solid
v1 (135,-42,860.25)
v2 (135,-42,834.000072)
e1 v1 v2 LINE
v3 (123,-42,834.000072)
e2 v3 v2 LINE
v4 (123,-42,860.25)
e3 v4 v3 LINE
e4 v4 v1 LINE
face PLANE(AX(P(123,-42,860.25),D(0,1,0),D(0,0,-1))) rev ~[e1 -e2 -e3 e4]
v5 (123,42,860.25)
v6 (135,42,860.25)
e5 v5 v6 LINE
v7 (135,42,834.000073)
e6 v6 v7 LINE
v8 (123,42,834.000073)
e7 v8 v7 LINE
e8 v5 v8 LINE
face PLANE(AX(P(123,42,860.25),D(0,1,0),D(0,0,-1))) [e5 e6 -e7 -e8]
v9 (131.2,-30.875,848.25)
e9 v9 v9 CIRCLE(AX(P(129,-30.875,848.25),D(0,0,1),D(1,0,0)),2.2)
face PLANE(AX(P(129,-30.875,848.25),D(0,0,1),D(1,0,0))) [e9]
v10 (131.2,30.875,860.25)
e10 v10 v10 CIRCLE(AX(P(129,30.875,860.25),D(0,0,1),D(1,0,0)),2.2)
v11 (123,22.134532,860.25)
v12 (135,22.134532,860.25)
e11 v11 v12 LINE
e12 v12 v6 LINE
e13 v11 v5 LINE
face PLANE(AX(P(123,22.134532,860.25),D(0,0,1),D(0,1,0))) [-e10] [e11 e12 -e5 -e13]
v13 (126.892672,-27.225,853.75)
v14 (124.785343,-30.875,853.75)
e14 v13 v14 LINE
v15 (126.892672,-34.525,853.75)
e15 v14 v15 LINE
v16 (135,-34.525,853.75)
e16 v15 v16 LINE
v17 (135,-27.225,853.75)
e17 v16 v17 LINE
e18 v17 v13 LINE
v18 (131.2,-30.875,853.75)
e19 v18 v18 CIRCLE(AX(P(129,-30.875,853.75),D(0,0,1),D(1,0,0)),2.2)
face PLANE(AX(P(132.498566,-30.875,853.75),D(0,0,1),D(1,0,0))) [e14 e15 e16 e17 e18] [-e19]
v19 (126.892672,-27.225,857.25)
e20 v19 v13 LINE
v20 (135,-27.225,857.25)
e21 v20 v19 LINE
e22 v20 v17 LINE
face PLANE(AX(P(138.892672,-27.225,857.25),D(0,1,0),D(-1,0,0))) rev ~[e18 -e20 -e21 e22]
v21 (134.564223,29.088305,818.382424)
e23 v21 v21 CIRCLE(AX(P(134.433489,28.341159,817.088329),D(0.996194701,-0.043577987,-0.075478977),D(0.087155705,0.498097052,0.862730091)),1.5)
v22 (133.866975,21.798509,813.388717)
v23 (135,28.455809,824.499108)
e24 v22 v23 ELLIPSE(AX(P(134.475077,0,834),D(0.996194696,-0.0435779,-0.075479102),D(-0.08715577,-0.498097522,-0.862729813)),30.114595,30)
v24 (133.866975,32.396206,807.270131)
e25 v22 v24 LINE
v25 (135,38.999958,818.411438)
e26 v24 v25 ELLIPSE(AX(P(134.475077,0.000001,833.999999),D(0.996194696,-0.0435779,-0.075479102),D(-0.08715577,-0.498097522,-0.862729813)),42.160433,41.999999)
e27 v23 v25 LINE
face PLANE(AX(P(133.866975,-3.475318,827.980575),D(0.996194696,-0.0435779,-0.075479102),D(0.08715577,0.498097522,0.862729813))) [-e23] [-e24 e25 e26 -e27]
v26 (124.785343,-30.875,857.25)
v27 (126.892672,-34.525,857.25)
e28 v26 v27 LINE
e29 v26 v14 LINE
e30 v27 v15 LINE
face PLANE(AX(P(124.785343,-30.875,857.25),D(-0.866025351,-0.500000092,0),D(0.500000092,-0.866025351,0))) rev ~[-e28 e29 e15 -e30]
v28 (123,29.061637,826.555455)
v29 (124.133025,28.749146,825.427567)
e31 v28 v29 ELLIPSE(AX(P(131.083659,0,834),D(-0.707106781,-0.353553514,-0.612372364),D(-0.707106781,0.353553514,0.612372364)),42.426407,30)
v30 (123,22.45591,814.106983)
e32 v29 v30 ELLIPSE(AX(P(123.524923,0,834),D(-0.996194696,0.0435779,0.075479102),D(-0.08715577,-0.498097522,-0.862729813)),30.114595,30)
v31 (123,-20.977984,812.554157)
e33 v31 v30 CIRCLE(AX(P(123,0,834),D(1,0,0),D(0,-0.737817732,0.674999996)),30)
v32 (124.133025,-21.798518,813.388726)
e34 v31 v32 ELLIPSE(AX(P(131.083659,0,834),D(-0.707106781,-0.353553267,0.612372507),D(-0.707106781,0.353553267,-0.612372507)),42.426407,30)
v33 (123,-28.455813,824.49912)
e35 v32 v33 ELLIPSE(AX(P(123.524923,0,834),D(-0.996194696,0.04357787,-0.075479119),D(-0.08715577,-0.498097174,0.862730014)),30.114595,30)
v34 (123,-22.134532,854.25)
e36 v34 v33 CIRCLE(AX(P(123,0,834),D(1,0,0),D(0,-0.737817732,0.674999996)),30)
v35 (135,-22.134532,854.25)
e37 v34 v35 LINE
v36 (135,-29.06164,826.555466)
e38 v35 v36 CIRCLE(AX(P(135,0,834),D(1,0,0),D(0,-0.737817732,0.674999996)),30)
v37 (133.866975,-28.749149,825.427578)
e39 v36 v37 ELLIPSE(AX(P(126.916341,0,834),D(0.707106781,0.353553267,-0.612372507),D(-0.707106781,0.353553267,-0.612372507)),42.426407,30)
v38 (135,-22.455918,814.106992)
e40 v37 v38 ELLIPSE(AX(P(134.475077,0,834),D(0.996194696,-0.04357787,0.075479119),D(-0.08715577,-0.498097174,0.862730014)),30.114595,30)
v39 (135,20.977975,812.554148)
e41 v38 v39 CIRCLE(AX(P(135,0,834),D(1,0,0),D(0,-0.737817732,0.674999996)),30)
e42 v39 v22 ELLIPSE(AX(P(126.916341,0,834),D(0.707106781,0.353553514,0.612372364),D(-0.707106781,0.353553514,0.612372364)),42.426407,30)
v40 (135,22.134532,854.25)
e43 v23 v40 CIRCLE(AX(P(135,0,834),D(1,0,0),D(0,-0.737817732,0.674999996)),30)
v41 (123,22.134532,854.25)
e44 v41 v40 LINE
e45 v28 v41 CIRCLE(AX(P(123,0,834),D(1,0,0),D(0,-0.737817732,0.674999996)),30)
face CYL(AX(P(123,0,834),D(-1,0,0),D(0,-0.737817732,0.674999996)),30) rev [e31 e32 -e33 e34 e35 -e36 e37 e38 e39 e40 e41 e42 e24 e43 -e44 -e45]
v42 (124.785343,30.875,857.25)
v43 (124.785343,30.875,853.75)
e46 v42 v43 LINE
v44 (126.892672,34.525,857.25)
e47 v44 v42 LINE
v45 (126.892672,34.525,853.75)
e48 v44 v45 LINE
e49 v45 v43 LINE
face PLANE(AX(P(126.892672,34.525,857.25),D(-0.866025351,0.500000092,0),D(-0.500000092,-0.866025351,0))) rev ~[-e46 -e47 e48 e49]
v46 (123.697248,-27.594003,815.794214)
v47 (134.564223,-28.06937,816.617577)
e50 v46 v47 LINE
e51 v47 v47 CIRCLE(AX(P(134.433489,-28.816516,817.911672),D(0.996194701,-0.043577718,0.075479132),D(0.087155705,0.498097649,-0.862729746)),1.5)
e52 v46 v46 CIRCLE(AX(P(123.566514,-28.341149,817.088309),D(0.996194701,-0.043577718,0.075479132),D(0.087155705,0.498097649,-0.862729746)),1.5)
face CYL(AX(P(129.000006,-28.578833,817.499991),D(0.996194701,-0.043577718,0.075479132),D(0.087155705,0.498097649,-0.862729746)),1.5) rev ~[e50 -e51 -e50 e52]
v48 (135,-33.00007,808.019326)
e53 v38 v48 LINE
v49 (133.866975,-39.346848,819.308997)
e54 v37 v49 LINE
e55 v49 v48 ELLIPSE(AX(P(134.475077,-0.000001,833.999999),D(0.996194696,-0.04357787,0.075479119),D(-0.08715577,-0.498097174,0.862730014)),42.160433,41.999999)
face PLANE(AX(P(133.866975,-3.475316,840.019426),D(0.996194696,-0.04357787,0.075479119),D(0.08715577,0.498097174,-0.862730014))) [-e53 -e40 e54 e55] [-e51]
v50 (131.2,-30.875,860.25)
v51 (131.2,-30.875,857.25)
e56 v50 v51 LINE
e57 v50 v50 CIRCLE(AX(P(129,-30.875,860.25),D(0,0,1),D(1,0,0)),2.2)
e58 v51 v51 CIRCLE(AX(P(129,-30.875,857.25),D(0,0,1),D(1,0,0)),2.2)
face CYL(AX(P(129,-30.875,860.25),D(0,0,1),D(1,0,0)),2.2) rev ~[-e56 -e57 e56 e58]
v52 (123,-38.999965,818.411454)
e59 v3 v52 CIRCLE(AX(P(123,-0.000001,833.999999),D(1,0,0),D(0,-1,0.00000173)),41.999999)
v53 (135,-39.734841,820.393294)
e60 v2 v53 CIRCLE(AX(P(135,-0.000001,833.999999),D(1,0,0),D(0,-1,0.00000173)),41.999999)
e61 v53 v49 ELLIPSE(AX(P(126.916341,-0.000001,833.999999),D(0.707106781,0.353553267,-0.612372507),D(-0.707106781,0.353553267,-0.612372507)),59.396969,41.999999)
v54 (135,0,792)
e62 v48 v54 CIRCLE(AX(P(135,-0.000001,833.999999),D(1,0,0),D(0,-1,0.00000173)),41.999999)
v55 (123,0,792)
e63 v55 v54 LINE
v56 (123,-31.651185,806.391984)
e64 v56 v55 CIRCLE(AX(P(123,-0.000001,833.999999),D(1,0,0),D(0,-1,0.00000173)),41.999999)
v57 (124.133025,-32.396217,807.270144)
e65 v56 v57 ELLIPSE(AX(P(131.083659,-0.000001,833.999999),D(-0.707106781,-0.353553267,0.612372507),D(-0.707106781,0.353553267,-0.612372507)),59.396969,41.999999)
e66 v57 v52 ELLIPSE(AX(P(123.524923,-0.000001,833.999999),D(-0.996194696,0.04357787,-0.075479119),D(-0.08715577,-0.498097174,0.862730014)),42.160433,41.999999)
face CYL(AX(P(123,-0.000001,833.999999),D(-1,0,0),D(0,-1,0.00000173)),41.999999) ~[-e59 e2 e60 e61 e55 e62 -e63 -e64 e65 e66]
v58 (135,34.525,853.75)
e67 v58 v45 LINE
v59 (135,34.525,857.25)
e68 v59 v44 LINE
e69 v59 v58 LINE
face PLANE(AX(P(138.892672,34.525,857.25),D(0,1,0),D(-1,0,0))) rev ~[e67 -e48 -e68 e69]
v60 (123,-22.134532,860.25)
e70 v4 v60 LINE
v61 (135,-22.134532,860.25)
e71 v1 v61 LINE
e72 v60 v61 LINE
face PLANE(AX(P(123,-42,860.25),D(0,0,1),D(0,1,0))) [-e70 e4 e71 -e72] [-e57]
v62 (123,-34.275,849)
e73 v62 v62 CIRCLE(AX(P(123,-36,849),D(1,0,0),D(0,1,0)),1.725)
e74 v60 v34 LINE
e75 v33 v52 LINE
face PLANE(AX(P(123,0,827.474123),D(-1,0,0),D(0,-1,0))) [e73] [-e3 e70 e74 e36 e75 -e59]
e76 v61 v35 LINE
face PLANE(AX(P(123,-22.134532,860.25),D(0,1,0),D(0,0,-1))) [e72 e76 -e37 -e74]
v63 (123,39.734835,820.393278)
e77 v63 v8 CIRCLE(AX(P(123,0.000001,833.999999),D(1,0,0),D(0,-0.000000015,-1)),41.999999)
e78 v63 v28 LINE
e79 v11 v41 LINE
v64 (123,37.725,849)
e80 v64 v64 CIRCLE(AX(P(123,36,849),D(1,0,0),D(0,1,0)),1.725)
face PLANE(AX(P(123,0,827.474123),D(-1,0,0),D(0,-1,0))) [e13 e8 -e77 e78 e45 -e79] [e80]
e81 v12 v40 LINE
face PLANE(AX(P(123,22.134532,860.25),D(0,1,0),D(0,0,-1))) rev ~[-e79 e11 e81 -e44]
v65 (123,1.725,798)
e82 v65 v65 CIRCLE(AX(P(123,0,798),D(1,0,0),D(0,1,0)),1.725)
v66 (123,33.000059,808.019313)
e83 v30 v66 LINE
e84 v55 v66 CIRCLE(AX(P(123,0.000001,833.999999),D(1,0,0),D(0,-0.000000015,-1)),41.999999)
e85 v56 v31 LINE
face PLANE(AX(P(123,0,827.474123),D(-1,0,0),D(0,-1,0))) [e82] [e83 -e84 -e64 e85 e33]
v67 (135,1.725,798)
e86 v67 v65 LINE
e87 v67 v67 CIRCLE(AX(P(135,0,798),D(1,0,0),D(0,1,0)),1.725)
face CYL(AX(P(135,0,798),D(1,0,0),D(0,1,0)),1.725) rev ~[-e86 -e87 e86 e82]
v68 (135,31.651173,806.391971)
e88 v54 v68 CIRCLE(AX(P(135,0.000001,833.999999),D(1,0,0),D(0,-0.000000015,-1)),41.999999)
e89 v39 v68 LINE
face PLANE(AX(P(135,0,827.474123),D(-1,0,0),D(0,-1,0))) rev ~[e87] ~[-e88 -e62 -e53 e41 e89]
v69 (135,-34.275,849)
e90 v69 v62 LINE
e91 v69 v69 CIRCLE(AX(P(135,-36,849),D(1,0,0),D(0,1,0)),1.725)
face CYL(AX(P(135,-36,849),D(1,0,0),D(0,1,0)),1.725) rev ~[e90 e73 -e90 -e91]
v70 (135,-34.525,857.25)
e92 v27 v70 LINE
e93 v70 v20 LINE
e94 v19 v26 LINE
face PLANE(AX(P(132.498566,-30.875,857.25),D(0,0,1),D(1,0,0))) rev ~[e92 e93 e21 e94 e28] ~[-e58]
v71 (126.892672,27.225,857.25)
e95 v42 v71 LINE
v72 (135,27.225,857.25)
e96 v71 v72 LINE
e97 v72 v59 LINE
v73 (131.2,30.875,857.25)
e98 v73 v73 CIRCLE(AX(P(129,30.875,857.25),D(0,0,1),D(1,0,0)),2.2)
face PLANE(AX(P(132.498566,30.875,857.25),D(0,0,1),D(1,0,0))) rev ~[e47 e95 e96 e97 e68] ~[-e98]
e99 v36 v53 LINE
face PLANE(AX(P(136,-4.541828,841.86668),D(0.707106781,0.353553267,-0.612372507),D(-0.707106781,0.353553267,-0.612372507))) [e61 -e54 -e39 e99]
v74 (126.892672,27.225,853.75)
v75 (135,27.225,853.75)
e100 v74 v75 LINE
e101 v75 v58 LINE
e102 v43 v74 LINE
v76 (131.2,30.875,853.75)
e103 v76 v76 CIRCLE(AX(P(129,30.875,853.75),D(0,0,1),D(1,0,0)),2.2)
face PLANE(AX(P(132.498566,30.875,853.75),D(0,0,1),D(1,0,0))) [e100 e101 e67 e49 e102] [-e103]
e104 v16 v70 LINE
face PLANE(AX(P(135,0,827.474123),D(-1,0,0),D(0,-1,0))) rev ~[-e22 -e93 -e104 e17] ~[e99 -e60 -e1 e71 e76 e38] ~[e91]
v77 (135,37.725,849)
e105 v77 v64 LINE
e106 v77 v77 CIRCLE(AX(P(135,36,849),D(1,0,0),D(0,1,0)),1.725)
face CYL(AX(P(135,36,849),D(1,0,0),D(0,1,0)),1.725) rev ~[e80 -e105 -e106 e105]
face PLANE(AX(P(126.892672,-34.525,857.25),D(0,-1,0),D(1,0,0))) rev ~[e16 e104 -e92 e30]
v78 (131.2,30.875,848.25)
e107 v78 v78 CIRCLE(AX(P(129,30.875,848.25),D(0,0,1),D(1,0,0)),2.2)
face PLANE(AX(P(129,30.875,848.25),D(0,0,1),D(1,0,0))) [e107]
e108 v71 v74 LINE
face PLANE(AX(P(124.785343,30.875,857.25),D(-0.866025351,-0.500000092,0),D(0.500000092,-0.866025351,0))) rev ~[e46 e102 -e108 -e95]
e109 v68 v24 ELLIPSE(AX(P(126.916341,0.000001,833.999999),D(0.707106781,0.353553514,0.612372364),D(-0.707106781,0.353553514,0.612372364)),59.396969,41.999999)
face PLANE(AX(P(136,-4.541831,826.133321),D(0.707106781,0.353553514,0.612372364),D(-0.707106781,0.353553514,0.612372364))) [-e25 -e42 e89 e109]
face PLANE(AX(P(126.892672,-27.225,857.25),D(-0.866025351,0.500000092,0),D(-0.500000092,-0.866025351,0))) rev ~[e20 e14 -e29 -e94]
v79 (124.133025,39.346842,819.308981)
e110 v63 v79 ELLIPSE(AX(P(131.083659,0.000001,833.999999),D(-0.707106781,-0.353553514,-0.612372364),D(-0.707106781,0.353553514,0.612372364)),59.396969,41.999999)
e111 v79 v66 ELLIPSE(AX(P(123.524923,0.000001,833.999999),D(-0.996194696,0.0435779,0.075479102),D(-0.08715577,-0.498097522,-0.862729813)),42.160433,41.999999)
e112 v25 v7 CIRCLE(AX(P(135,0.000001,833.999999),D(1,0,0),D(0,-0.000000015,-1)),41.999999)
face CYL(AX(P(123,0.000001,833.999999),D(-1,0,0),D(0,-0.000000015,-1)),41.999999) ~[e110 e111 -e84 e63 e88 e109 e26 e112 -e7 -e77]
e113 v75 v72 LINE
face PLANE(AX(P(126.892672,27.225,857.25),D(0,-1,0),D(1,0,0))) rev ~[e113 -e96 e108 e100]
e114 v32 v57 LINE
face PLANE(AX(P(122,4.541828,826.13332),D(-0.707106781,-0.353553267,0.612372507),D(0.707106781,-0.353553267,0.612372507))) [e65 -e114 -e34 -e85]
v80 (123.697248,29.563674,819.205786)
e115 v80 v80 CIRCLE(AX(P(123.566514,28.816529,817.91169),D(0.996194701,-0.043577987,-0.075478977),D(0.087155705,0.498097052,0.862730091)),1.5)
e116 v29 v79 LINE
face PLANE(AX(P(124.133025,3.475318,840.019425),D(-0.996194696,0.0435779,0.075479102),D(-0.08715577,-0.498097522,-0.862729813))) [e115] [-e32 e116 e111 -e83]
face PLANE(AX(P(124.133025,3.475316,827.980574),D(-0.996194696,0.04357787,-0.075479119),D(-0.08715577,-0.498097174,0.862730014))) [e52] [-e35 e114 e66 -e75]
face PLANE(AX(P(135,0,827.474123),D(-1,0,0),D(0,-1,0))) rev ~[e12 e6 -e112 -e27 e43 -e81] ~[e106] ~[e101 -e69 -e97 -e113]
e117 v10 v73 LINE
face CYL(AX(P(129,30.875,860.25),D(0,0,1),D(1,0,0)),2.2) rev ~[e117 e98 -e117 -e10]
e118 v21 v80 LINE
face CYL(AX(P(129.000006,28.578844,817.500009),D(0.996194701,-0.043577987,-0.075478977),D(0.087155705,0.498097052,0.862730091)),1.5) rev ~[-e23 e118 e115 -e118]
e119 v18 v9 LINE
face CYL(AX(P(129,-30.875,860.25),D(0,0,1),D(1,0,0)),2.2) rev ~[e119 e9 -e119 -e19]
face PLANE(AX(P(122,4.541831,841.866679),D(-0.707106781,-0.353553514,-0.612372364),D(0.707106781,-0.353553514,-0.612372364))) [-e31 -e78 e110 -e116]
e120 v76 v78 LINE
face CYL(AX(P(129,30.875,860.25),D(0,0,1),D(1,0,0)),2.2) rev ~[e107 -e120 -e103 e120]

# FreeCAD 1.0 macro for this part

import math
import FreeCAD as App
import Part
import Sketcher
Q = App.Units.Quantity


def add_polygon(sketch, points):
    """Adds a closed chain of lines whose ends are joined by coincident constraints."""
    first, n = sketch.GeometryCount, len(points)
    for a, b in zip(points, points[1:] + points[:1]):
        sketch.addGeometry(Part.LineSegment(App.Vector(*a, 0), App.Vector(*b, 0)), False)
    for i in range(n):
        sketch.addConstraint(Sketcher.Constraint("Coincident", first + i, 2, first + (i + 1) % n, 1))

doc = App.newDocument("Part")
body = doc.addObject("PartDesign::Body", "Body")

# Sketch on YZ plane
sketch1 = body.newObject("Sketcher::SketchObject", "Sketch")
sketch1.AttachmentSupport = (doc.getObject("YZ_Plane"), [""])
sketch1.MapMode = "FlatFace"
sketch1.addGeometry(Part.LineSegment(App.Vector(-22.134532, 26.25, 0), App.Vector(-42, 26.25, 0)), False)
sketch1.addGeometry(Part.LineSegment(App.Vector(-42, 26.25, 0), App.Vector(-42, 0.000072, 0)), False)
sketch1.addGeometry(Part.ArcOfCircle(Part.Circle(App.Vector(-0.000001, -0.000001, 0), App.Vector(0, 0, 1), 41.999999), math.radians(179.999901), math.radians(270.000001)), False)
sketch1.addGeometry(Part.ArcOfCircle(Part.Circle(App.Vector(0.000001, -0.000001, 0), App.Vector(0, 0, 1), 41.999999), math.radians(-90.000001), math.radians(0.0001)), False)
sketch1.addGeometry(Part.LineSegment(App.Vector(42, 0.000073, 0), App.Vector(42, 26.25, 0)), False)
sketch1.addGeometry(Part.LineSegment(App.Vector(42, 26.25, 0), App.Vector(22.134532, 26.25, 0)), False)
sketch1.addGeometry(Part.LineSegment(App.Vector(22.134532, 26.25, 0), App.Vector(22.134532, 20.25, 0)), False)
sketch1.addGeometry(Part.ArcOfCircle(Part.Circle(App.Vector(0, 0, 0), App.Vector(0, 0, 1), 30), math.radians(137.54585), math.radians(402.45415)), False)
sketch1.addGeometry(Part.LineSegment(App.Vector(-22.134532, 20.25, 0), App.Vector(-22.134532, 26.25, 0)), False)
sketch1.addConstraint(Sketcher.Constraint("Coincident", 0, 2, 1, 1))
sketch1.addConstraint(Sketcher.Constraint("Coincident", 1, 2, 2, 1))
sketch1.addConstraint(Sketcher.Constraint("Coincident", 2, 2, 3, 1))
sketch1.addConstraint(Sketcher.Constraint("Coincident", 3, 2, 4, 1))
sketch1.addConstraint(Sketcher.Constraint("Coincident", 4, 2, 5, 1))
sketch1.addConstraint(Sketcher.Constraint("Coincident", 5, 2, 6, 1))
sketch1.addConstraint(Sketcher.Constraint("Coincident", 6, 2, 7, 2))
sketch1.addConstraint(Sketcher.Constraint("Coincident", 7, 1, 8, 1))
sketch1.addConstraint(Sketcher.Constraint("Coincident", 8, 2, 0, 1))
sketch1.addConstraint(Sketcher.Constraint("Horizontal", 0))
sketch1.addConstraint(Sketcher.Constraint("Vertical", 1))
sketch1.addConstraint(Sketcher.Constraint("Vertical", 4))
sketch1.addConstraint(Sketcher.Constraint("Horizontal", 5))
sketch1.addConstraint(Sketcher.Constraint("Vertical", 6))
sketch1.addConstraint(Sketcher.Constraint("Vertical", 8))
sketch1.addConstraint(Sketcher.Constraint("Coincident", 2, 3, -1, 1))
sketch1.addConstraint(Sketcher.Constraint("Coincident", 3, 3, -1, 1))
sketch1.addConstraint(Sketcher.Constraint("Coincident", 7, 3, -1, 1))
sketch1.addConstraint(Sketcher.Constraint("PointOnObject", 2, 2, -2))
sketch1.addConstraint(Sketcher.Constraint("Radius", 2, 41.999999))
sketch1.addConstraint(Sketcher.Constraint("Radius", 7, 30.0))
sketch1.addConstraint(Sketcher.Constraint("DistanceY", 6, 2, 6, 1, 6.0))
sketch1.addConstraint(Sketcher.Constraint("DistanceY", 8, 1, 8, 2, 6.0))
sketch1.addConstraint(Sketcher.Constraint("DistanceY", -1, 1, 0, 2, 26.25))
sketch1.addConstraint(Sketcher.Constraint("DistanceY", -1, 1, 4, 2, 26.25))
sketch1.addConstraint(Sketcher.Constraint("DistanceY", 1, 2, 1, 1, 26.249928))
sketch1.addConstraint(Sketcher.Constraint("DistanceY", 4, 1, 4, 2, 26.249927))
pad1 = body.newObject("PartDesign::Pad", "Pad")
pad1.Profile = sketch1
pad1.Length = 12

# Sketch on YZ plane
sketch2 = body.newObject("Sketcher::SketchObject", "Sketch001")
sketch2.AttachmentSupport = (doc.getObject("YZ_Plane"), [""])
sketch2.MapMode = "FlatFace"
sketch2.AttachmentOffset = App.Placement(App.Vector(0, 0, 12), App.Rotation())
sketch2.addGeometry(Part.Circle(App.Vector(0, -36, 0), App.Vector(0, 0, 1), 1.7), False)
sketch2.addGeometry(Part.Circle(App.Vector(-36, 15, 0), App.Vector(0, 0, 1), 1.7), False)
sketch2.addGeometry(Part.Circle(App.Vector(36, 15, 0), App.Vector(0, 0, 1), 1.7), False)
sketch2.addConstraint(Sketcher.Constraint("Equal", 0, 1))
sketch2.addConstraint(Sketcher.Constraint("Equal", 1, 2))
sketch2.addConstraint(Sketcher.Constraint("Symmetric", 1, 3, 2, 3, -2))
sketch2.addConstraint(Sketcher.Constraint("PointOnObject", 0, 3, -2))
sketch2.addConstraint(Sketcher.Constraint("Diameter", 0, 3.45))
sketch2.addConstraint(Sketcher.Constraint("DistanceY", 0, 3, -1, 1, 36.0))
sketch2.addConstraint(Sketcher.Constraint("DistanceX", 1, 3, -1, 1, 36.0))
sketch2.addConstraint(Sketcher.Constraint("DistanceY", -1, 1, 1, 3, 15.0))
pocket1 = body.newObject("PartDesign::Pocket", "Pocket")
pocket1.Profile = sketch2
pocket1.Type = "ThroughAll"

# Sketch on XY plane
sketch3 = body.newObject("Sketcher::SketchObject", "Sketch002")
sketch3.AttachmentSupport = (doc.getObject("XY_Plane"), [""])
sketch3.MapMode = "FlatFace"
sketch3.AttachmentOffset = App.Placement(App.Vector(0, 0, 26.25), App.Rotation())
sketch3.addGeometry(Part.Circle(App.Vector(6, 30.9, 0), App.Vector(0, 0, 1), 2.2), False)
sketch3.addGeometry(Part.Circle(App.Vector(6, -30.9, 0), App.Vector(0, 0, 1), 2.2), False)
sketch3.addConstraint(Sketcher.Constraint("Equal", 0, 1))
sketch3.addConstraint(Sketcher.Constraint("Symmetric", 0, 3, 1, 3, -1))
sketch3.addConstraint(Sketcher.Constraint("Diameter", 0, 4.4))
sketch3.addConstraint(Sketcher.Constraint("DistanceX", -1, 1, 0, 3, 6.0))
sketch3.addConstraint(Sketcher.Constraint("DistanceY", 1, 3, 0, 3, 61.75))
pocket2 = body.newObject("PartDesign::Pocket", "Pocket001")
pocket2.Profile = sketch3
pocket2.Length = 12

# Sketch on XY plane
sketch4 = body.newObject("Sketcher::SketchObject", "Sketch003")
sketch4.AttachmentSupport = (doc.getObject("XY_Plane"), [""])
sketch4.MapMode = "FlatFace"
sketch4.AttachmentOffset = App.Placement(App.Vector(0, 0, 23.25), App.Rotation())
add_polygon(sketch4, [(3.9, -27.2), (1.8, -30.9), (3.9, -34.5), (15.9, -34.5), (15.9, -27.2)])  # lines 0-4
add_polygon(sketch4, [(3.9, 34.5), (1.8, 30.9), (3.9, 27.2), (15.9, 27.2), (15.9, 34.5)])  # lines 5-9
sketch4.addConstraint(Sketcher.Constraint("Horizontal", 2))
sketch4.addConstraint(Sketcher.Constraint("Vertical", 3))
sketch4.addConstraint(Sketcher.Constraint("Horizontal", 4))
sketch4.addConstraint(Sketcher.Constraint("Horizontal", 7))
sketch4.addConstraint(Sketcher.Constraint("Vertical", 8))
sketch4.addConstraint(Sketcher.Constraint("Horizontal", 9))
sketch4.addConstraint(Sketcher.Constraint("Symmetric", 0, 2, 5, 2, -1))
sketch4.addConstraint(Sketcher.Constraint("Symmetric", 4, 2, 6, 2, -1))
sketch4.addConstraint(Sketcher.Constraint("Symmetric", 2, 2, 8, 2, -1))
sketch4.addConstraint(Sketcher.Constraint("Parallel", 0, 5))
sketch4.addConstraint(Sketcher.Constraint("Parallel", 1, 6))
sketch4.addConstraint(Sketcher.Constraint("Vertical", 1, 2, 4, 2))
sketch4.addConstraint(Sketcher.Constraint("DistanceX", 2, 1, 2, 2, 12.0))
sketch4.addConstraint(Sketcher.Constraint("Angle", 0, Q("-120.000006 deg")))
sketch4.addConstraint(Sketcher.Constraint("DistanceY", 3, 1, 3, 2, 7.3))
sketch4.addConstraint(Sketcher.Constraint("DistanceY", 4, 2, 5, 2, 58.1))
sketch4.addConstraint(Sketcher.Constraint("DistanceX", -1, 1, 2, 2, 15.892672))
pocket3 = body.newObject("PartDesign::Pocket", "Pocket002")
pocket3.Profile = sketch4
pocket3.Length = 3.5

# Sketch on an angled plane
sketch5 = body.newObject("Sketcher::SketchObject", "Sketch004")
sketch5.Placement = App.Placement(App.Vector(6, 0, 0), App.Rotation(App.Vector(0.087155705, 0.498097052, 0.862730091), App.Vector(-0.000000185, -0.866025569, 0.499999714), App.Vector(0.996194701, -0.043577987, -0.075478977), "ZXY"))
sketch5.addGeometry(Part.Circle(App.Vector(0, -33, 0), App.Vector(0, 0, 1), 1.5), False)
sketch5.addConstraint(Sketcher.Constraint("PointOnObject", 0, 3, -2))
sketch5.addConstraint(Sketcher.Constraint("Diameter", 0, 3.0))
sketch5.addConstraint(Sketcher.Constraint("DistanceY", 0, 3, -1, 1, 33.0))
pocket4 = body.newObject("PartDesign::Pocket", "Pocket003")
pocket4.Profile = sketch5
pocket4.Type = "ThroughAll"
pocket4.Midplane = True

# Sketch on an angled plane
sketch6 = body.newObject("Sketcher::SketchObject", "Sketch005")
sketch6.Placement = App.Placement(App.Vector(6, 0, 0), App.Rotation(App.Vector(1, 0, 0), App.Vector(0, 0.500000175, 0.866025303), App.Vector(0, -0.866025303, 0.500000175), "ZXY"))
add_polygon(sketch6, [(7, 6), (6, 6), (4.9, -7), (7, -9.1)])  # lines 0-3
add_polygon(sketch6, [(-4.9, 7), (-7, 9.1), (-7, -6), (-6, -6)])  # lines 4-7
sketch6.addConstraint(Sketcher.Constraint("Horizontal", 0))
sketch6.addConstraint(Sketcher.Constraint("Vertical", 3))
sketch6.addConstraint(Sketcher.Constraint("Vertical", 5))
sketch6.addConstraint(Sketcher.Constraint("Horizontal", 6))
sketch6.addConstraint(Sketcher.Constraint("Symmetric", 2, 2, 4, 2, -1, 1))
sketch6.addConstraint(Sketcher.Constraint("Symmetric", 0, 2, 6, 2, -1, 1))
sketch6.addConstraint(Sketcher.Constraint("Symmetric", 1, 2, 7, 2, -1, 1))
sketch6.addConstraint(Sketcher.Constraint("DistanceX", 0, 2, 0, 1, 1.0))
sketch6.addConstraint(Sketcher.Constraint("Angle", 1, Q("-95.000002 deg")))
sketch6.addConstraint(Sketcher.Constraint("Angle", 2, Q("-45 deg")))
sketch6.addConstraint(Sketcher.Constraint("Distance", 1, 13.0))
sketch6.addConstraint(Sketcher.Constraint("DistanceX", -1, 1, 0, 2, 6.0))
sketch6.addConstraint(Sketcher.Constraint("DistanceY", 2, 2, -1, 1, 9.083659))
pocket5 = body.newObject("PartDesign::Pocket", "Pocket004")
pocket5.Profile = sketch6
pocket5.Type = "ThroughAll"
doc.recompute()

polarpattern = body.newObject("PartDesign::PolarPattern", "PolarPattern")
polarpattern.Originals = [pocket5, pocket4]
polarpattern.Axis = (doc.getObject("X_Axis"), [""])
polarpattern.Angle = 240
polarpattern.Occurrences = 2
body.Tip = polarpattern
body2 = doc.addObject("PartDesign::Body", "Body001")
doc.recompute()

body.Placement = App.Placement(App.Vector(123, 0, 834), App.Rotation(App.Vector(0, 0, 1), 0))
boolean = body2.newObject("PartDesign::Boolean", "Boolean")
boolean.Type = "Fuse"
boolean.addObjects([body])

doc.recompute()
